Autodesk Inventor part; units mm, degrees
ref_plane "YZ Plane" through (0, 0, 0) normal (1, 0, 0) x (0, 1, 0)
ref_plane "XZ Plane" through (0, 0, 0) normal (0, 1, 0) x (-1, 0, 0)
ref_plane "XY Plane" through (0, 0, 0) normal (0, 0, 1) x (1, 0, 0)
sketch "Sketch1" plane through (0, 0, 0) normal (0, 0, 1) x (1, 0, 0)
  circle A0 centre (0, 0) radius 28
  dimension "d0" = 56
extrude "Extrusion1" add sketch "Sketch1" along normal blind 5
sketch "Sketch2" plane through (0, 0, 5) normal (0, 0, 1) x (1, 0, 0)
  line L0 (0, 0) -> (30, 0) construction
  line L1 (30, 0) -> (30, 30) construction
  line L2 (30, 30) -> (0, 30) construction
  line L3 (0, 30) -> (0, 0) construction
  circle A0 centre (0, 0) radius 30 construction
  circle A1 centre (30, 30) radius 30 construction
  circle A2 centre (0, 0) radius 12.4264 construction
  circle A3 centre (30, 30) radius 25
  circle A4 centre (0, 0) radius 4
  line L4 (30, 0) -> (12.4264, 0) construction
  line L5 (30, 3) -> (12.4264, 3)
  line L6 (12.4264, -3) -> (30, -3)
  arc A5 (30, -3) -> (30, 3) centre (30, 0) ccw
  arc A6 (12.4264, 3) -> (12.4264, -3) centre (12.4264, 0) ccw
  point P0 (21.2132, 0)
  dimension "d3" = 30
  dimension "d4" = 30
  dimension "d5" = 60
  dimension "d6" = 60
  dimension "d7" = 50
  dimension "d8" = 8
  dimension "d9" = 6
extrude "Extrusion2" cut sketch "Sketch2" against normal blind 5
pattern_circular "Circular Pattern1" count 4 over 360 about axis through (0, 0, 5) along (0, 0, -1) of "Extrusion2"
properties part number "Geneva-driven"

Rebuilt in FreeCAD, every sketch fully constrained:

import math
import FreeCAD as App
import Part
import Sketcher
from FreeCAD import Vector

doc = App.newDocument("Part")
body = doc.addObject("PartDesign::Body", "Body")

# Sketch on XY plane
sketch1 = body.newObject("Sketcher::SketchObject", "Sketch")
sketch1.AttachmentSupport = (doc.getObject("XY_Plane"), [""])
sketch1.MapMode = "FlatFace"
sketch1.addGeometry(Part.Circle(Vector(0, 0, 0), Vector(0, 0, 1), 28), False)
sketch1.addConstraint([
    Sketcher.Constraint("Coincident", 0, 3, -1, 1),
    Sketcher.Constraint("Diameter", 0, 56.0),
])
pad1 = body.newObject("PartDesign::Pad", "Pad")
pad1.Profile = sketch1
pad1.Length = 5

# Sketch on XY plane
sketch2 = body.newObject("Sketcher::SketchObject", "Sketch001")
sketch2.AttachmentSupport = (doc.getObject("XY_Plane"), [""])
sketch2.MapMode = "FlatFace"
sketch2.AttachmentOffset = App.Placement(Vector(0, 0, 5), App.Rotation())
sketch2.addGeometry([
    Part.Circle(Vector(30, 30, 0), Vector(0, 0, 1), 25),  # 0
    Part.Circle(Vector(0, 0, 0), Vector(0, 0, 1), 4),  # 1
    Part.ArcOfCircle(Part.Circle(Vector(30, 0, 0), Vector(0, 0, 1), 3), math.radians(-90), math.radians(90)),  # 2
    Part.LineSegment(Vector(30, 3, 0), Vector(12.4, 3, 0)),  # 3
    Part.ArcOfCircle(Part.Circle(Vector(12.4, 0, 0), Vector(0, 0, 1), 3), math.radians(90), math.radians(270)),  # 4
    Part.LineSegment(Vector(12.4, -3, 0), Vector(30, -3, 0)),  # 5
], False)
sketch2.addConstraint([
    Sketcher.Constraint("Tangent", 2, 2, 3, 1),
    Sketcher.Constraint("Tangent", 3, 2, 4, 1),
    Sketcher.Constraint("Tangent", 4, 2, 5, 1),
    Sketcher.Constraint("Tangent", 5, 2, 2, 1),
    Sketcher.Constraint("Horizontal", 3),
    Sketcher.Constraint("Horizontal", 5),
    Sketcher.Constraint("Coincident", 1, 3, -1, 1),
    Sketcher.Constraint("PointOnObject", 2, 3, -1),
    Sketcher.Constraint("Vertical", 0, 3, 2, 3),
    Sketcher.Constraint("Diameter", 0, 50.0),
    Sketcher.Constraint("Diameter", 1, 8.0),
    Sketcher.Constraint("Radius", 2, 3.0),
    Sketcher.Constraint("DistanceX", -1, 1, 0, 3, 30.0),
    Sketcher.Constraint("DistanceY", -1, 1, 0, 3, 30.0),
    Sketcher.Constraint("DistanceX", 3, 2, 3, 1, 17.5736),
])
pocket1 = body.newObject("PartDesign::Pocket", "Pocket")
pocket1.Profile = sketch2
pocket1.Length = 5
doc.recompute()

polarpattern = body.newObject("PartDesign::PolarPattern", "PolarPattern")
polarpattern.Originals = [pocket1]
polarpattern.Axis = (doc.getObject("Z_Axis"), [""])
polarpattern.Angle = 360
polarpattern.Occurrences = 4
body.Tip = polarpattern

doc.recompute()
